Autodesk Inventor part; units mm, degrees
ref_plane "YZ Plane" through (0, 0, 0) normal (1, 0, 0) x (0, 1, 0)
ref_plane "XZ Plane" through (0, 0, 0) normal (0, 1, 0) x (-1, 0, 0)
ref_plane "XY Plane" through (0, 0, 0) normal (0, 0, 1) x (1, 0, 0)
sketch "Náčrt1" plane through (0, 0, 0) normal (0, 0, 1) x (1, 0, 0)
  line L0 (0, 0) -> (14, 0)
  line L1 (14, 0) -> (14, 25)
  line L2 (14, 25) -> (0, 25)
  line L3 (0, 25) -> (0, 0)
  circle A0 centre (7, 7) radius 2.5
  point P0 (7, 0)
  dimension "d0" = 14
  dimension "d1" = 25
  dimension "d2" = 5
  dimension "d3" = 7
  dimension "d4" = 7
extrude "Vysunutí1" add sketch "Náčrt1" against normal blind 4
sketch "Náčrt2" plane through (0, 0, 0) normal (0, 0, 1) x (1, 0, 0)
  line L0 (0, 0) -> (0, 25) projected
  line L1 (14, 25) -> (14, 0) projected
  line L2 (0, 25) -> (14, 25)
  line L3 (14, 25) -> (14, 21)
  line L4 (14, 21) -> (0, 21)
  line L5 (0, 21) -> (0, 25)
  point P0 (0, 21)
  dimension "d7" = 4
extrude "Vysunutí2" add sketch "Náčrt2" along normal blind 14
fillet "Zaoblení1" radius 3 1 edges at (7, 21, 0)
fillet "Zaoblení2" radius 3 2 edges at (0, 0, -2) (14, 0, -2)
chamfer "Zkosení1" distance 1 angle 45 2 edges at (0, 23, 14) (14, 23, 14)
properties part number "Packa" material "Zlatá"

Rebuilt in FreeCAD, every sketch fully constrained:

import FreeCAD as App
import Part
import Sketcher
from FreeCAD import Vector
Q = App.Units.Quantity


def edges_at(feature, points):
    """Names of the edges that pass closest to the given points."""
    edges = feature.Shape.Edges
    near = lambda p: min(range(len(edges)), key=lambda i: edges[i].distToShape(Part.Vertex(*p))[0])
    return sorted({f"Edge{near(p) + 1}" for p in points})

doc = App.newDocument("Part")
body = doc.addObject("PartDesign::Body", "Body")

# Sketch on XY plane
sketch1 = body.newObject("Sketcher::SketchObject", "Sketch")
sketch1.AttachmentSupport = (doc.getObject("XY_Plane"), [""])
sketch1.MapMode = "FlatFace"
sketch1.addGeometry(Part.LineSegment(Vector(0, 25, 0), Vector(0, 0, 0)), False)
sketch1.addGeometry(Part.LineSegment(Vector(0, 0, 0), Vector(14, 0, 0)), False)
sketch1.addGeometry(Part.LineSegment(Vector(14, 0, 0), Vector(14, 25, 0)), False)
sketch1.addGeometry(Part.LineSegment(Vector(14, 25, 0), Vector(0, 25, 0)), False)
sketch1.addGeometry(Part.Circle(Vector(7, 7, 0), Vector(0, 0, 1), 2.5), False)
sketch1.addConstraint(Sketcher.Constraint("Coincident", 0, 2, 1, 1))
sketch1.addConstraint(Sketcher.Constraint("Coincident", 1, 2, 2, 1))
sketch1.addConstraint(Sketcher.Constraint("Coincident", 2, 2, 3, 1))
sketch1.addConstraint(Sketcher.Constraint("Coincident", 3, 2, 0, 1))
sketch1.addConstraint(Sketcher.Constraint("Vertical", 0))
sketch1.addConstraint(Sketcher.Constraint("Horizontal", 1))
sketch1.addConstraint(Sketcher.Constraint("Vertical", 2))
sketch1.addConstraint(Sketcher.Constraint("Horizontal", 3))
sketch1.addConstraint(Sketcher.Constraint("Coincident", 0, 2, -1, 1))
sketch1.addConstraint(Sketcher.Constraint("Diameter", 4, Q("5 mm")))
sketch1.addConstraint(Sketcher.Constraint("DistanceX", 1, 1, 1, 2, Q("14 mm")))
sketch1.addConstraint(Sketcher.Constraint("DistanceY", 0, 2, 0, 1, Q("25 mm")))
sketch1.addConstraint(Sketcher.Constraint("DistanceX", -1, 1, 4, 3, Q("7 mm")))
sketch1.addConstraint(Sketcher.Constraint("DistanceY", -1, 1, 4, 3, Q("7 mm")))
pad1 = body.newObject("PartDesign::Pad", "Pad")
pad1.Profile = sketch1
pad1.Length = 4
pad1.Reversed = True

# Sketch on XY plane
sketch2 = body.newObject("Sketcher::SketchObject", "Sketch001")
sketch2.AttachmentSupport = (doc.getObject("XY_Plane"), [""])
sketch2.MapMode = "FlatFace"
sketch2.addGeometry(Part.LineSegment(Vector(0, 25, 0), Vector(0, 21, 0)), False)
sketch2.addGeometry(Part.LineSegment(Vector(0, 21, 0), Vector(14, 21, 0)), False)
sketch2.addGeometry(Part.LineSegment(Vector(14, 21, 0), Vector(14, 25, 0)), False)
sketch2.addGeometry(Part.LineSegment(Vector(14, 25, 0), Vector(0, 25, 0)), False)
sketch2.addConstraint(Sketcher.Constraint("Coincident", 0, 2, 1, 1))
sketch2.addConstraint(Sketcher.Constraint("Coincident", 1, 2, 2, 1))
sketch2.addConstraint(Sketcher.Constraint("Coincident", 2, 2, 3, 1))
sketch2.addConstraint(Sketcher.Constraint("Coincident", 3, 2, 0, 1))
sketch2.addConstraint(Sketcher.Constraint("Vertical", 0))
sketch2.addConstraint(Sketcher.Constraint("Horizontal", 1))
sketch2.addConstraint(Sketcher.Constraint("Vertical", 2))
sketch2.addConstraint(Sketcher.Constraint("Horizontal", 3))
sketch2.addConstraint(Sketcher.Constraint("PointOnObject", 0, 2, -2))
sketch2.addConstraint(Sketcher.Constraint("DistanceY", 0, 2, 0, 1, Q("4 mm")))
sketch2.addConstraint(Sketcher.Constraint("DistanceX", 1, 1, 1, 2, Q("14 mm")))
sketch2.addConstraint(Sketcher.Constraint("DistanceY", -1, 1, 0, 2, Q("21 mm")))
pad2 = body.newObject("PartDesign::Pad", "Pad001")
pad2.Profile = sketch2
pad2.Length = 14
doc.recompute()

fillet = body.newObject("PartDesign::Fillet", "Fillet")
fillet.Base = (pad2, edges_at(pad2, [(7, 21, 0)]))
fillet.Radius = 3
doc.recompute()

fillet2 = body.newObject("PartDesign::Fillet", "Fillet001")
fillet2.Base = (fillet, edges_at(fillet, [(0, 0, -2), (14, 0, -2)]))
fillet2.Radius = 3
doc.recompute()

chamfer = body.newObject("PartDesign::Chamfer", "Chamfer")
chamfer.Base = (fillet2, edges_at(fillet2, [(0, 23, 14), (14, 23, 14)]))
chamfer.Size = 1

doc.recompute()
